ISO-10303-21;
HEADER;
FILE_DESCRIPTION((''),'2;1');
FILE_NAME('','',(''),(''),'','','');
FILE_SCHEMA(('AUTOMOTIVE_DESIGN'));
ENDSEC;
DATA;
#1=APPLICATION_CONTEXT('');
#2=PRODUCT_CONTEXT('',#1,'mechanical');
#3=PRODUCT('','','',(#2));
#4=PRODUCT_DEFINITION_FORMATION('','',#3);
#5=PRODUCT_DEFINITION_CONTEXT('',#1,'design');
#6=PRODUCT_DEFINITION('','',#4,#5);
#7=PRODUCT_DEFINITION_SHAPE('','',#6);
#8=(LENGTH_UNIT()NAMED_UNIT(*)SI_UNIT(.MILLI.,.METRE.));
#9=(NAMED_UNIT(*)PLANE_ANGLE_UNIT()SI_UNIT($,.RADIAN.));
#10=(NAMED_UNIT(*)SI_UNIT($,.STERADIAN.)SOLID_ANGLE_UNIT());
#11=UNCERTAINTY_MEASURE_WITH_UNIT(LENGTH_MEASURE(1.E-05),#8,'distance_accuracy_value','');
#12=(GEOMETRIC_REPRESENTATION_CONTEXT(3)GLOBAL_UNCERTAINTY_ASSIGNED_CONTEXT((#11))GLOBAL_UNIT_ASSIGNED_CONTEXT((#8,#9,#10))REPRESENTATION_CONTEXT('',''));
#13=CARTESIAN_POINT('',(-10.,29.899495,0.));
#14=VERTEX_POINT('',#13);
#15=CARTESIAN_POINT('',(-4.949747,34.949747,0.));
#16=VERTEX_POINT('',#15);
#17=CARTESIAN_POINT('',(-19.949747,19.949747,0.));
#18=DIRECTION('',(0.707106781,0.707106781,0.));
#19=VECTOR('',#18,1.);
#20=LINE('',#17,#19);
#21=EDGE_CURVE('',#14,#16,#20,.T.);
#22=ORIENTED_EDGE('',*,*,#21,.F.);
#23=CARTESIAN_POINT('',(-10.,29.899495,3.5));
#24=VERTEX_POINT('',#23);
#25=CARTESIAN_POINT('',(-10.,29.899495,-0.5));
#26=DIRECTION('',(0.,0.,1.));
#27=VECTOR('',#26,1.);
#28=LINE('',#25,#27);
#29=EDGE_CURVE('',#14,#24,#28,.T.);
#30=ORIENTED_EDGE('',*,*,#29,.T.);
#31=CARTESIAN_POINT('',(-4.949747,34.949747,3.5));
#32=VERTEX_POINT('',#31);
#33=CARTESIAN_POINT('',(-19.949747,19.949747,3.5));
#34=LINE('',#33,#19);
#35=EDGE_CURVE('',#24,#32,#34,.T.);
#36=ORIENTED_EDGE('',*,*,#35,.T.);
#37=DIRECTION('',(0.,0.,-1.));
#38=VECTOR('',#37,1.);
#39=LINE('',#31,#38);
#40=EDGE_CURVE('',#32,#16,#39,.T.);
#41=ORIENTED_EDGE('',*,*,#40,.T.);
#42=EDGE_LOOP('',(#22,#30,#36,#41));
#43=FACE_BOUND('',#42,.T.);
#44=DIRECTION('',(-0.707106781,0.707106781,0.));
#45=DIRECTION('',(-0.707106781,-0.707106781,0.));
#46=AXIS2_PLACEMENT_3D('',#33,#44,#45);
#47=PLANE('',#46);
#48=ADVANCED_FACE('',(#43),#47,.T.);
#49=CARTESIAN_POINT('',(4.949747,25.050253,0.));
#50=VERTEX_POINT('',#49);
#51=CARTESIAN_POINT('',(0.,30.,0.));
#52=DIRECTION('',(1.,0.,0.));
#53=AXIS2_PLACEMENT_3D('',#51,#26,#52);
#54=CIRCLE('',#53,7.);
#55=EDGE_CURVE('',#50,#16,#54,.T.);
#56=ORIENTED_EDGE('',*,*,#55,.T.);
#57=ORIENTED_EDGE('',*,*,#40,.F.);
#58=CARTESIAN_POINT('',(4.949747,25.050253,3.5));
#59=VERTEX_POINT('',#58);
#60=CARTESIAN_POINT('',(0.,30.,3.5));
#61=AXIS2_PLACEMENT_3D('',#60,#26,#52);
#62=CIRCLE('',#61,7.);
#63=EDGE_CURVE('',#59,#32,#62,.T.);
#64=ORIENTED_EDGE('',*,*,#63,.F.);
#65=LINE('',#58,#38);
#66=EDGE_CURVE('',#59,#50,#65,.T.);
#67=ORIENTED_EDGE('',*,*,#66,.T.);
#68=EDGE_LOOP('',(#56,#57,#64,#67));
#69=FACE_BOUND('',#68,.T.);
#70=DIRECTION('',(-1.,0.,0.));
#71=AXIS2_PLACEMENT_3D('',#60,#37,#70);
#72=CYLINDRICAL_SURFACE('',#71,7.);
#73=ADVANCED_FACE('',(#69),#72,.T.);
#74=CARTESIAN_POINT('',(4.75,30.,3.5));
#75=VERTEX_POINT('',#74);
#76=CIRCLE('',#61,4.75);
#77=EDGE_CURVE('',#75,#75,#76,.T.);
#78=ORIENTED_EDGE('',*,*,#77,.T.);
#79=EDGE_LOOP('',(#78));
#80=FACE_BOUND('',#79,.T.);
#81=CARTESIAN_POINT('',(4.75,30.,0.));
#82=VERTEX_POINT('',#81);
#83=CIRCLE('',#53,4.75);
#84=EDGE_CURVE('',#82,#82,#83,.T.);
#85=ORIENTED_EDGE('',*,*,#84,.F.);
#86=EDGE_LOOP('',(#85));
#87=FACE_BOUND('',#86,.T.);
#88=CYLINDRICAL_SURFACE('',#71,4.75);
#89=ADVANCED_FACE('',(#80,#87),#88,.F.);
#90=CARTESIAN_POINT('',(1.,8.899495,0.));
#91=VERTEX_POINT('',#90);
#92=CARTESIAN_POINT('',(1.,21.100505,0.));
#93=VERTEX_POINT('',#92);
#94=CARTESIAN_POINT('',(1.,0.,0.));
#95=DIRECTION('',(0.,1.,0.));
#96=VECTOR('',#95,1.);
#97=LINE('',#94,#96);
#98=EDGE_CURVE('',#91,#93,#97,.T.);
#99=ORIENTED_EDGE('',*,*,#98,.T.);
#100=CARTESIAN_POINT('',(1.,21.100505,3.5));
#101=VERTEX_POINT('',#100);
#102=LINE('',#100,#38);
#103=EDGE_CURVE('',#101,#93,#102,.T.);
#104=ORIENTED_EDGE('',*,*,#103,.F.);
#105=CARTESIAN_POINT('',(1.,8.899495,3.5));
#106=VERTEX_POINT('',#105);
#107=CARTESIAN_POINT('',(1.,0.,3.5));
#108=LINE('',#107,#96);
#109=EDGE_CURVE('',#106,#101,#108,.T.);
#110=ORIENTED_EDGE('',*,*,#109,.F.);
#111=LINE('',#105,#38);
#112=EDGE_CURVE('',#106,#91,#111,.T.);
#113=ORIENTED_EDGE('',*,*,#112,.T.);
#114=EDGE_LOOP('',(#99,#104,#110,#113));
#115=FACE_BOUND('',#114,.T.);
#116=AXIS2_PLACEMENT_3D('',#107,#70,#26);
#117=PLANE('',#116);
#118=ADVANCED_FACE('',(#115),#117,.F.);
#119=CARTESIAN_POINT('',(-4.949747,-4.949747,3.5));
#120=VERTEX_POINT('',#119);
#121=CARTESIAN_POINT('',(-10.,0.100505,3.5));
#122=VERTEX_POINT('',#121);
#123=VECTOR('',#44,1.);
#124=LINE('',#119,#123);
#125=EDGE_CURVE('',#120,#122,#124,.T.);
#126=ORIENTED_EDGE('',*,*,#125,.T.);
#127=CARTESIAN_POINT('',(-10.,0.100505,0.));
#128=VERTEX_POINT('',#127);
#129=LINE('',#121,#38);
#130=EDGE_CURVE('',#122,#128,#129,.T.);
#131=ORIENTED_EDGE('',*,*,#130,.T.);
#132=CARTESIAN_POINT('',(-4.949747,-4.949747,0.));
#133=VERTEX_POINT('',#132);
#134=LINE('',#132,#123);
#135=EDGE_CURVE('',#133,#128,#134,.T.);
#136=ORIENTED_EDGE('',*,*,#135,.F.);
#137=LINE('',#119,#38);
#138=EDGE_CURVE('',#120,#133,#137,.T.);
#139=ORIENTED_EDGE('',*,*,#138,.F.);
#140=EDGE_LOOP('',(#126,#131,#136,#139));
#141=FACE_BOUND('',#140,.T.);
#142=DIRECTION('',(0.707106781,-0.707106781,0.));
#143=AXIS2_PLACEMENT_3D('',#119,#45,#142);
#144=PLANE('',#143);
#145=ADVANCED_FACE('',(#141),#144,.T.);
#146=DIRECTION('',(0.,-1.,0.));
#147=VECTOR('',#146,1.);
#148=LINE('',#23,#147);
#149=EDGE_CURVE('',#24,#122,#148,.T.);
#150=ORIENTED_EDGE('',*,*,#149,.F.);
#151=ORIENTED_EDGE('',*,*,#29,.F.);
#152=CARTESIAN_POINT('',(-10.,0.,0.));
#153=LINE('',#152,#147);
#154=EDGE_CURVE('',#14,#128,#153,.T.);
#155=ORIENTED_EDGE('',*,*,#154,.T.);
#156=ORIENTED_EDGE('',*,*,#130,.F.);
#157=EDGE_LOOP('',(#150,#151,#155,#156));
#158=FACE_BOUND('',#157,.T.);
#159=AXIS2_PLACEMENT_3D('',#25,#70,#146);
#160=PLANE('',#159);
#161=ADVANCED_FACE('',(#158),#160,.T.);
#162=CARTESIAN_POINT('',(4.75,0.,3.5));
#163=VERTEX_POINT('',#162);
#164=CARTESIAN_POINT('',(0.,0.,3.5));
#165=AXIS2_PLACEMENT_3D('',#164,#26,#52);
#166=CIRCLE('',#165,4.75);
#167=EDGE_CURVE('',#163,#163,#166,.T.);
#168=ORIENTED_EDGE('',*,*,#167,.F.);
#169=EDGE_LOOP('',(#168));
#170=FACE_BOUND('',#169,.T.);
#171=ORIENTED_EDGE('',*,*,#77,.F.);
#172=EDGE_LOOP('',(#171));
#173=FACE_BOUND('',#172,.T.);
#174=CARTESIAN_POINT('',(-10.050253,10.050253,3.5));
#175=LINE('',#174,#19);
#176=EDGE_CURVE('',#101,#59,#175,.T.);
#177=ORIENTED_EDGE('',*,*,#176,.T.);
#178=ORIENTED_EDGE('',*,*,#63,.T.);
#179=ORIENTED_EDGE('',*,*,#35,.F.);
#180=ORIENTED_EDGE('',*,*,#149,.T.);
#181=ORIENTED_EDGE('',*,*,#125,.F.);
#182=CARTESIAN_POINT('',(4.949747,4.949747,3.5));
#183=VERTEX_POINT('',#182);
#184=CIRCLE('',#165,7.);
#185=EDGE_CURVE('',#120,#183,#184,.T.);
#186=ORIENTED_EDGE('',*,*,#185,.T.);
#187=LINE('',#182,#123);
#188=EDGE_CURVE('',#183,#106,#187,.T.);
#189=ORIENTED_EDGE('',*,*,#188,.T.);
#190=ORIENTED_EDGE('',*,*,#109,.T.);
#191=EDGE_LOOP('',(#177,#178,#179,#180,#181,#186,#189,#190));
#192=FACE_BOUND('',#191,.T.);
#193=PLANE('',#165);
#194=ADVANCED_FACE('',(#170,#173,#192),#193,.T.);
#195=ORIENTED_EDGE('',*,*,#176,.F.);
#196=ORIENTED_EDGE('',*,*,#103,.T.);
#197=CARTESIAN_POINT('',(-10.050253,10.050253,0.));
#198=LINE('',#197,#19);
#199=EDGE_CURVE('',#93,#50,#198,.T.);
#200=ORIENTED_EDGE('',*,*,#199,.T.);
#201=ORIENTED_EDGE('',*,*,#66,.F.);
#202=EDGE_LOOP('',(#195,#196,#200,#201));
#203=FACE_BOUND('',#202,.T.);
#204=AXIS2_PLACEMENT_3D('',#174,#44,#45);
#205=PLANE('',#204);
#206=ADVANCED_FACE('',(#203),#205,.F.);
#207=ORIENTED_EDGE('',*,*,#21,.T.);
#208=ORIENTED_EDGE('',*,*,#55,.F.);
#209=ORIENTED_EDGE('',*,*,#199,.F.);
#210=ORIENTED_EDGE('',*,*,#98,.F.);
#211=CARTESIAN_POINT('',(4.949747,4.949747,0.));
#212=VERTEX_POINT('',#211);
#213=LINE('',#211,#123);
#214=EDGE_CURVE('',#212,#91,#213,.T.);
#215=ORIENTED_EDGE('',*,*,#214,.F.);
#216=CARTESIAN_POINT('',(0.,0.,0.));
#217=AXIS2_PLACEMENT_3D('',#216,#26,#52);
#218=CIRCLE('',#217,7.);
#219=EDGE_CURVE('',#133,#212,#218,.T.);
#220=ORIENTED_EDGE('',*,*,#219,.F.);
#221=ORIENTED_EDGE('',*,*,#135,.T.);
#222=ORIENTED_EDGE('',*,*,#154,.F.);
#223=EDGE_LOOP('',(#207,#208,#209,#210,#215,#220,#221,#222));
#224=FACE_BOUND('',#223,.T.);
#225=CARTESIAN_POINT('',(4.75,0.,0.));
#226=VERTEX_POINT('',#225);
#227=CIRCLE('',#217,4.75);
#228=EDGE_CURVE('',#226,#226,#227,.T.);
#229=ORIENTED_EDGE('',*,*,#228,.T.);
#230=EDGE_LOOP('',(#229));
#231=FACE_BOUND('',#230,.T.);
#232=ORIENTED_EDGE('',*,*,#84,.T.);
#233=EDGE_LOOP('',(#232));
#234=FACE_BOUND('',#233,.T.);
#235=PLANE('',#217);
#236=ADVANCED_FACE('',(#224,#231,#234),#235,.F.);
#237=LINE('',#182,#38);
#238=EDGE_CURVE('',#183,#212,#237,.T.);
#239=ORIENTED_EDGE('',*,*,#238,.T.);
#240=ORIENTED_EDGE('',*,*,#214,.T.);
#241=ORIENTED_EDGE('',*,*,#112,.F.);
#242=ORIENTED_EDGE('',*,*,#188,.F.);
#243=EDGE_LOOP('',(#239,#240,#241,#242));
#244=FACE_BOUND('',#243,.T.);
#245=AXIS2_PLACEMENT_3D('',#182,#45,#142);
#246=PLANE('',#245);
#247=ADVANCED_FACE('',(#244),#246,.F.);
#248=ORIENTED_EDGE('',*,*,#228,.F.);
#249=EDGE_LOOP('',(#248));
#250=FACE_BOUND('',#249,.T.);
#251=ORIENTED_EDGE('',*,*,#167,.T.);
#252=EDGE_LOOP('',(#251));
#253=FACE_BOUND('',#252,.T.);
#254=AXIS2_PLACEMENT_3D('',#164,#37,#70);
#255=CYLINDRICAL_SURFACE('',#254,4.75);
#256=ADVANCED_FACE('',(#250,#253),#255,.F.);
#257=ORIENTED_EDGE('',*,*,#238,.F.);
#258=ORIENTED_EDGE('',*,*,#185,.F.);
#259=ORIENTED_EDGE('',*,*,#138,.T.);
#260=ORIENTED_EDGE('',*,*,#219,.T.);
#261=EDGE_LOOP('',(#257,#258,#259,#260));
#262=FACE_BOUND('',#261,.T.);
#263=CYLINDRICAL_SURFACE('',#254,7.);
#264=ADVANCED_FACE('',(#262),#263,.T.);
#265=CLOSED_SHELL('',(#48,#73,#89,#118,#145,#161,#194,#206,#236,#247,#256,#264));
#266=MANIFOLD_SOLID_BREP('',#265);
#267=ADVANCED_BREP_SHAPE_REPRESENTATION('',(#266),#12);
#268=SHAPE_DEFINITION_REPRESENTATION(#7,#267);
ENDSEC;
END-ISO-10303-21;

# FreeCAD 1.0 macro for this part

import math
import FreeCAD as App
import Part
import Sketcher

doc = App.newDocument("Part")
body = doc.addObject("PartDesign::Body", "Body")

sketch1 = doc.addObject("Sketcher::SketchObject", "Sketch")
body.addObject(sketch1)
sketch1.AttachmentSupport = (doc.XY_Plane, [""])
sketch1.MapMode = "FlatFace"
sketch1.addGeometry(Part.LineSegment(App.Vector(4.949747, 4.949747, 0), App.Vector(1, 8.899495, 0)), False)
sketch1.addGeometry(Part.LineSegment(App.Vector(1, 8.899495, 0), App.Vector(1, 21.100505, 0)), False)
sketch1.addGeometry(Part.LineSegment(App.Vector(1, 21.100505, 0), App.Vector(4.949747, 25.050253, 0)), False)
sketch1.addGeometry(Part.ArcOfCircle(Part.Circle(App.Vector(0, 30, 0), App.Vector(0, 0, 1), 7), math.radians(-45), math.radians(135)), False)
sketch1.addGeometry(Part.LineSegment(App.Vector(-4.949747, 34.949747, 0), App.Vector(-13, 26.899495, 0)), False)
sketch1.addGeometry(Part.LineSegment(App.Vector(-13, 26.899495, 0), App.Vector(-13, 3.100505, 0)), False)
sketch1.addGeometry(Part.LineSegment(App.Vector(-13, 3.100505, 0), App.Vector(-4.949747, -4.949747, 0)), False)
sketch1.addGeometry(Part.ArcOfCircle(Part.Circle(App.Vector(0, 0, 0), App.Vector(0, 0, 1), 7), math.radians(-135), math.radians(45)), False)
sketch1.addGeometry(Part.Circle(App.Vector(0, 0, 0), App.Vector(0, 0, 1), 4.75), False)
sketch1.addGeometry(Part.Circle(App.Vector(0, 30, 0), App.Vector(0, 0, 1), 4.75), False)
sketch1.addConstraint(Sketcher.Constraint("Coincident", 0, 2, 1, 1))
sketch1.addConstraint(Sketcher.Constraint("Coincident", 1, 2, 2, 1))
sketch1.addConstraint(Sketcher.Constraint("Tangent", 2, 2, 3, 1))
sketch1.addConstraint(Sketcher.Constraint("Tangent", 3, 2, 4, 1))
sketch1.addConstraint(Sketcher.Constraint("Coincident", 4, 2, 5, 1))
sketch1.addConstraint(Sketcher.Constraint("Coincident", 5, 2, 6, 1))
sketch1.addConstraint(Sketcher.Constraint("Tangent", 6, 2, 7, 1))
sketch1.addConstraint(Sketcher.Constraint("Tangent", 7, 2, 0, 1))
sketch1.addConstraint(Sketcher.Constraint("Vertical", 1))
sketch1.addConstraint(Sketcher.Constraint("Vertical", 5))
sketch1.addConstraint(Sketcher.Constraint("Coincident", 7, 3, -1, 1))
sketch1.addConstraint(Sketcher.Constraint("Coincident", 8, 3, -1, 1))
sketch1.addConstraint(Sketcher.Constraint("Coincident", 9, 3, 3, 3))
sketch1.addConstraint(Sketcher.Constraint("Equal", 3, 7))
sketch1.addConstraint(Sketcher.Constraint("Equal", 8, 9))
sketch1.addConstraint(Sketcher.Constraint("PointOnObject", 3, 3, -2))
sketch1.addConstraint(Sketcher.Constraint("Perpendicular", 0, 2))
sketch1.addConstraint(Sketcher.Constraint("Parallel", 2, 4))
sketch1.addConstraint(Sketcher.Constraint("Perpendicular", 4, 6))
sketch1.addConstraint(Sketcher.Constraint("Vertical", 3, 2, 6, 2))
sketch1.addConstraint(Sketcher.Constraint("Radius", 3, 7.0))
sketch1.addConstraint(Sketcher.Constraint("Diameter", 8, 9.5))
sketch1.addConstraint(Sketcher.Constraint("DistanceY", -1, 1, 3, 3, 30.0))
sketch1.addConstraint(Sketcher.Constraint("DistanceX", -1, 1, 0, 2, 1.0))
sketch1.addConstraint(Sketcher.Constraint("DistanceX", 4, 2, -1, 1, 13.0))
pad1 = doc.addObject("PartDesign::Pad", "Pad")
body.addObject(pad1)
pad1.Profile = sketch1
pad1.Length = 3.5

sketch2 = doc.addObject("Sketcher::SketchObject", "Sketch001")
body.addObject(sketch2)
sketch2.AttachmentSupport = (doc.XY_Plane, [""])
sketch2.MapMode = "FlatFace"
sketch2.AttachmentOffset = App.Placement(App.Vector(0, 0, 3.5), App.Rotation())
sketch2.addGeometry(Part.LineSegment(App.Vector(-18.235884, 29.899495, 0), App.Vector(-18.235884, -2.679442, 0)), False)
sketch2.addGeometry(Part.LineSegment(App.Vector(-18.235884, -2.679442, 0), App.Vector(-10, -2.679442, 0)), False)
sketch2.addGeometry(Part.LineSegment(App.Vector(-10, -2.679442, 0), App.Vector(-10, 29.899495, 0)), False)
sketch2.addGeometry(Part.LineSegment(App.Vector(-10, 29.899495, 0), App.Vector(-18.235884, 29.899495, 0)), False)
sketch2.addConstraint(Sketcher.Constraint("Coincident", 0, 2, 1, 1))
sketch2.addConstraint(Sketcher.Constraint("Coincident", 1, 2, 2, 1))
sketch2.addConstraint(Sketcher.Constraint("Coincident", 2, 2, 3, 1))
sketch2.addConstraint(Sketcher.Constraint("Coincident", 3, 2, 0, 1))
sketch2.addConstraint(Sketcher.Constraint("Vertical", 0))
sketch2.addConstraint(Sketcher.Constraint("Horizontal", 1))
sketch2.addConstraint(Sketcher.Constraint("Vertical", 2))
sketch2.addConstraint(Sketcher.Constraint("Horizontal", 3))
sketch2.addConstraint(Sketcher.Constraint("DistanceX", 1, 2, -1, 1, 10.0))
sketch2.addConstraint(Sketcher.Constraint("DistanceX", 1, 1, 1, 2, 8.235884))
sketch2.addConstraint(Sketcher.Constraint("DistanceY", 0, 2, 0, 1, 32.578937))
sketch2.addConstraint(Sketcher.Constraint("DistanceY", 0, 2, -1, 1, 2.679442))
pocket1 = doc.addObject("PartDesign::Pocket", "Pocket")
body.addObject(pocket1)
pocket1.Profile = sketch2
pocket1.Length = 4

doc.recompute()
